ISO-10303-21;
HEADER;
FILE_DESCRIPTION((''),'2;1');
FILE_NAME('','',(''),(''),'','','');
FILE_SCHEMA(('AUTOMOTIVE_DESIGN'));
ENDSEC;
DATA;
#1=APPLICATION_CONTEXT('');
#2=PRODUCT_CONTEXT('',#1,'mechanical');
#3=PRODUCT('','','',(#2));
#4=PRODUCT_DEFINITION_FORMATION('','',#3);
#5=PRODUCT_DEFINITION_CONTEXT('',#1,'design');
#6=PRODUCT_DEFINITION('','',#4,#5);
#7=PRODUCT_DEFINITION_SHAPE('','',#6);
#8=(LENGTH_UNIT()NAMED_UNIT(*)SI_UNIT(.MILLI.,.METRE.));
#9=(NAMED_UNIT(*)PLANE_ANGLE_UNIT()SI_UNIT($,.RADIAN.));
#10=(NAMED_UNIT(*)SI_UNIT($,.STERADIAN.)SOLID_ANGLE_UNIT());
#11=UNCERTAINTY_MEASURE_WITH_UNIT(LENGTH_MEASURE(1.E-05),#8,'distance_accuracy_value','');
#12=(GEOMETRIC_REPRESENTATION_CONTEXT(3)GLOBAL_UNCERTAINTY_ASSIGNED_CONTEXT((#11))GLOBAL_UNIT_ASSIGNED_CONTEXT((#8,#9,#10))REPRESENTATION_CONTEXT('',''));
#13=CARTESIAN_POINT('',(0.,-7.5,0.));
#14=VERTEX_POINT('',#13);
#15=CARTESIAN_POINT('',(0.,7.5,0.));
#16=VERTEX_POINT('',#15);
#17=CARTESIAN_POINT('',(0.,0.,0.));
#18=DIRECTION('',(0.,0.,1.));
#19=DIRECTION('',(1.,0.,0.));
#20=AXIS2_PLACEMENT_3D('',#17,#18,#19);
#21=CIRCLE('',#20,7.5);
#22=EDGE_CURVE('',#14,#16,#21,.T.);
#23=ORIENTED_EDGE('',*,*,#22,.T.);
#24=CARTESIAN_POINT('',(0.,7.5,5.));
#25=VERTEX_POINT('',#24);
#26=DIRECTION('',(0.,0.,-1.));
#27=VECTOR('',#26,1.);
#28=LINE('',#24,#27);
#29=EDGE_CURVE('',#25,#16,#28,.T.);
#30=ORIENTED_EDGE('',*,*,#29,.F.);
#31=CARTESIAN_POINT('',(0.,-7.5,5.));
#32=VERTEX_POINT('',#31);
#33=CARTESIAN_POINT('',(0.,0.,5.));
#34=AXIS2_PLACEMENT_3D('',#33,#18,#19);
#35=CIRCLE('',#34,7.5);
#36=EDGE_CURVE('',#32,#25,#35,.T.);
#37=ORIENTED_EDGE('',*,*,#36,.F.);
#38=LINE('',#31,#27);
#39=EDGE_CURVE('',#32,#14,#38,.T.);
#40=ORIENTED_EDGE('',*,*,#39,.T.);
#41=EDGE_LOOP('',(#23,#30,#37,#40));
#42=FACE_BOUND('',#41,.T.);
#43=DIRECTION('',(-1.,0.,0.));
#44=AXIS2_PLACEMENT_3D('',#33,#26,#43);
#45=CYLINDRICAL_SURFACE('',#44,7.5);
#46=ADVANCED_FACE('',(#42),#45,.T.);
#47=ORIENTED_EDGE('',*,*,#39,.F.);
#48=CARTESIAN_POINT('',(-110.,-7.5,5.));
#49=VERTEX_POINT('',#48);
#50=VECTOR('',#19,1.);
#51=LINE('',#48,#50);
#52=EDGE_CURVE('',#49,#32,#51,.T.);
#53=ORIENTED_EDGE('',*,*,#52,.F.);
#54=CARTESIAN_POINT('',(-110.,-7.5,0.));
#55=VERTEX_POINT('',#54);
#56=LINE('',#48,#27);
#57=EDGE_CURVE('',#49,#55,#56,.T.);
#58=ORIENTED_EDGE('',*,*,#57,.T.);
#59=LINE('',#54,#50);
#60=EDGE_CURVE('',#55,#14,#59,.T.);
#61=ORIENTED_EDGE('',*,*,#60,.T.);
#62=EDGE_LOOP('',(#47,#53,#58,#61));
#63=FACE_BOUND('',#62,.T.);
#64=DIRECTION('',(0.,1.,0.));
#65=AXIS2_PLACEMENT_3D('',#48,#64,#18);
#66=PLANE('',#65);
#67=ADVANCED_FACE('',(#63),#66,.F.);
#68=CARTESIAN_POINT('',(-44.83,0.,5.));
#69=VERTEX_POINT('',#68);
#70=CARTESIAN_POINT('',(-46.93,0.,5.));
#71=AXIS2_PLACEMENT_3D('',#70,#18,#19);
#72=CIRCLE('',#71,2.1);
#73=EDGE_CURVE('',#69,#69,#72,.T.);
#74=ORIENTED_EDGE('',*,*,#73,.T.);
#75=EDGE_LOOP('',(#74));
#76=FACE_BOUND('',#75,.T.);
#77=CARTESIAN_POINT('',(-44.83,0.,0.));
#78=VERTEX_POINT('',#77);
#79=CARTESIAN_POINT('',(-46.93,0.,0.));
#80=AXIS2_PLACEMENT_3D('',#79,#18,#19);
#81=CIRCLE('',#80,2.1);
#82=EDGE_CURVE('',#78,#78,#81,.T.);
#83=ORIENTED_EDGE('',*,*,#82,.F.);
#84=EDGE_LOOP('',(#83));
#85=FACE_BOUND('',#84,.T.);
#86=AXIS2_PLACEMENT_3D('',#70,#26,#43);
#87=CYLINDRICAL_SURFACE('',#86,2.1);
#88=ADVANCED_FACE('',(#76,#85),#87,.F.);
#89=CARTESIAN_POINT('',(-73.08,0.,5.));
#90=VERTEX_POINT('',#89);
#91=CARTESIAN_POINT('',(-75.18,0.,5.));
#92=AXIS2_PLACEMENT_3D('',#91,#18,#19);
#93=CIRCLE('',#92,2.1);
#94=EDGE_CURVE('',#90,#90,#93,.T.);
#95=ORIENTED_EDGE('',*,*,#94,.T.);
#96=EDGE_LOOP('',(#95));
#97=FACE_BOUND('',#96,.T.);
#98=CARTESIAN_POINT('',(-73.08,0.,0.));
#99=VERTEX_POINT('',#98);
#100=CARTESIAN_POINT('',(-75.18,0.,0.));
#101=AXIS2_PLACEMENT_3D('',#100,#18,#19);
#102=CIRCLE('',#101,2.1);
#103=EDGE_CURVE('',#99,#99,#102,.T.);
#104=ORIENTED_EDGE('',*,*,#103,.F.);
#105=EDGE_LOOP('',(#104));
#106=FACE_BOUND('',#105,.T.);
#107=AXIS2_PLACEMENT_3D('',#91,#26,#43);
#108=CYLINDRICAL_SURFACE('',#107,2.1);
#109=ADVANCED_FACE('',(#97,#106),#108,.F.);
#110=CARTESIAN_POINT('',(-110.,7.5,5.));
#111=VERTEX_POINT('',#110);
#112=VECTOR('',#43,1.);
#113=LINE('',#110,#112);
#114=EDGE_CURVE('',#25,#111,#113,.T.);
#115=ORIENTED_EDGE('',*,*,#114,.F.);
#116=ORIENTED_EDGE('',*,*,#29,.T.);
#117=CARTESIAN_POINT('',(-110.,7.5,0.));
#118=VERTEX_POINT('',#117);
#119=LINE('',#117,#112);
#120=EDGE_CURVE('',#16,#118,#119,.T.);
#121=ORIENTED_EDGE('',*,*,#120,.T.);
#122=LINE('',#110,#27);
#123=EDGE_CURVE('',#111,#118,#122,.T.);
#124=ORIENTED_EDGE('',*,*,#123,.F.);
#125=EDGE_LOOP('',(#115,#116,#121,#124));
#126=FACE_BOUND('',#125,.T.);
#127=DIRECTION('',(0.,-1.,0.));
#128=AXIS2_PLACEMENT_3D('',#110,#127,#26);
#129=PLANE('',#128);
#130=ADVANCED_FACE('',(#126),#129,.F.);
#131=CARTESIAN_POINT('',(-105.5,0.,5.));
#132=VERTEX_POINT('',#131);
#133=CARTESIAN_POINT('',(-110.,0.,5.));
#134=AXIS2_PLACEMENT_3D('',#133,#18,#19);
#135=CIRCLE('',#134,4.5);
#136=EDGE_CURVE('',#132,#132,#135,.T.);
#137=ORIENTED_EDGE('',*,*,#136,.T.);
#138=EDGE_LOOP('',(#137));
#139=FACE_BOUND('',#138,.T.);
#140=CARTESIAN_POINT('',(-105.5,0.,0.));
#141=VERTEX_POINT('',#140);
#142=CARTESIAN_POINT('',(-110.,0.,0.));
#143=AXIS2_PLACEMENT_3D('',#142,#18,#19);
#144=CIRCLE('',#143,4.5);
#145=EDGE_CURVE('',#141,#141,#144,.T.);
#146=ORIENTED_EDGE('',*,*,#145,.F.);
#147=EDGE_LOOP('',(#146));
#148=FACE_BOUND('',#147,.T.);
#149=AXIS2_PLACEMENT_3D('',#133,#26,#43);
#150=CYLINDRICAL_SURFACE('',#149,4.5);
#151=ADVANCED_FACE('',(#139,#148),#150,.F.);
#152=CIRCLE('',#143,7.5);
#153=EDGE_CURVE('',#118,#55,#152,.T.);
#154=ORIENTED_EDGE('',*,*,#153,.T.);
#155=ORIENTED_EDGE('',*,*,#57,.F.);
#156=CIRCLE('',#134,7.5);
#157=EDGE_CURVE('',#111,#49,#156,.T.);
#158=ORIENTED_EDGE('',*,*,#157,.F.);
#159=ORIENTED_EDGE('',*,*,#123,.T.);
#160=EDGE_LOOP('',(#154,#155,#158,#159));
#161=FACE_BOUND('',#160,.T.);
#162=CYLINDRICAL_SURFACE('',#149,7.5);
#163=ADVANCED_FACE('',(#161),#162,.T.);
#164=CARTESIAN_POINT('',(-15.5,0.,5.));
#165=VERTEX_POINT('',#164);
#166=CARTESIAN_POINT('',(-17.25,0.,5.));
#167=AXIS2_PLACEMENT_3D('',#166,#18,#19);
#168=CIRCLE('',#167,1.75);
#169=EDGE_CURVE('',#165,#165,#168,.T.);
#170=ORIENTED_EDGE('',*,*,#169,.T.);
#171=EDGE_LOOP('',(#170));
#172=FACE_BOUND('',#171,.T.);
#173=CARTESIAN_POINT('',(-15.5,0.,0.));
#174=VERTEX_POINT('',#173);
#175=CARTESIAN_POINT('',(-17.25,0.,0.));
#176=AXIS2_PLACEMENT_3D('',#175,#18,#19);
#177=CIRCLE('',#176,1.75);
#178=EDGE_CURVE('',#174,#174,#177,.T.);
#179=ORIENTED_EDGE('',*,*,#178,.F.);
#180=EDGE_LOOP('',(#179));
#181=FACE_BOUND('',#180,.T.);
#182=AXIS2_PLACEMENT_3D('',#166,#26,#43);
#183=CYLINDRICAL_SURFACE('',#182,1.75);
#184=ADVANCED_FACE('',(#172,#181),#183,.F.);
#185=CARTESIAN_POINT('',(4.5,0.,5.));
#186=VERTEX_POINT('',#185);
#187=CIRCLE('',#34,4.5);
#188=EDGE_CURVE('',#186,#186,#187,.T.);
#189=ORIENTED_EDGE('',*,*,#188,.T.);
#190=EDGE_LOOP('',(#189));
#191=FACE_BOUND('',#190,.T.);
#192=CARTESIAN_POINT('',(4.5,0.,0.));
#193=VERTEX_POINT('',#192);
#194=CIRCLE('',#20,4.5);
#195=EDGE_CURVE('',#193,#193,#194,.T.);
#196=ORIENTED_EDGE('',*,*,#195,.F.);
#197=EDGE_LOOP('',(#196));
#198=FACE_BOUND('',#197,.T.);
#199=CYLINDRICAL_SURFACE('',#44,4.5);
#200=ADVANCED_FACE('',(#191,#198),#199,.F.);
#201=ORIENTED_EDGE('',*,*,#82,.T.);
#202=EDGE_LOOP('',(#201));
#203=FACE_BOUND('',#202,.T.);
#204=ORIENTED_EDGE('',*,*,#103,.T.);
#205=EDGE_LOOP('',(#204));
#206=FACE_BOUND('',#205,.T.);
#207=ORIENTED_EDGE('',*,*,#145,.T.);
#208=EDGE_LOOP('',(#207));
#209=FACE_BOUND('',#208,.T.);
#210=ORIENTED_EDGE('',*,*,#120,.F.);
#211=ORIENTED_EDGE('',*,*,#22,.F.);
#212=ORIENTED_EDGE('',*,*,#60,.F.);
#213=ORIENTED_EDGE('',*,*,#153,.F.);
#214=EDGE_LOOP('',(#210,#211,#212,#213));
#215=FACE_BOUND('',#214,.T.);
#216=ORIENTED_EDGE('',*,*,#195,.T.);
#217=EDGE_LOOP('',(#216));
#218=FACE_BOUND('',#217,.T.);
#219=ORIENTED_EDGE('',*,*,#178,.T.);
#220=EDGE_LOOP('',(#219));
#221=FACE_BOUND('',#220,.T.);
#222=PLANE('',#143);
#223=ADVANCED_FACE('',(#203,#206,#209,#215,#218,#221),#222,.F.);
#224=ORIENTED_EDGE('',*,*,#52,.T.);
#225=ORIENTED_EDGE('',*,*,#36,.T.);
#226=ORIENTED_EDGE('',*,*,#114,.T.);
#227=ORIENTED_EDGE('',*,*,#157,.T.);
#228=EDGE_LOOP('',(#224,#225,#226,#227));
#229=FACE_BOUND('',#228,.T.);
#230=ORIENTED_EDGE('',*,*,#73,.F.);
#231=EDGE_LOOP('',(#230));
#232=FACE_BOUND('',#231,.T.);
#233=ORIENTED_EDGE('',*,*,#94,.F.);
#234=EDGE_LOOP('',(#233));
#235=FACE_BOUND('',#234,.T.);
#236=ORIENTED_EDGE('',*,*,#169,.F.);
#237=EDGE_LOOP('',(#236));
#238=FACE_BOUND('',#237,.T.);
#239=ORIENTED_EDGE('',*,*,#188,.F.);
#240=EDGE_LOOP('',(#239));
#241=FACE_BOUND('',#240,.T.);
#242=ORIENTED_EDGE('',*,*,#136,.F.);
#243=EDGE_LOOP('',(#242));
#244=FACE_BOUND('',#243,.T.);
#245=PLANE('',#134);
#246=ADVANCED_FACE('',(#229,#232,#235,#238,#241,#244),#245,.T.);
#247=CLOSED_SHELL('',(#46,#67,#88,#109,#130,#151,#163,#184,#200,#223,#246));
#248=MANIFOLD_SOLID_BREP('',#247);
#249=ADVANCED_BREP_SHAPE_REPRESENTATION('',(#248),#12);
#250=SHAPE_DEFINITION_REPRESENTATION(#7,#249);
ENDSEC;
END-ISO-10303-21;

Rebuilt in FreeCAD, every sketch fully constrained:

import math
import FreeCAD as App
import Part
import Sketcher

doc = App.newDocument("Part")
body = doc.addObject("PartDesign::Body", "Body")

# Sketch on XY plane
sketch1 = body.newObject("Sketcher::SketchObject", "Sketch")
sketch1.AttachmentSupport = (doc.getObject("XY_Plane"), [""])
sketch1.MapMode = "FlatFace"
sketch1.addGeometry([
    Part.LineSegment(App.Vector(0, 7.5, 0), App.Vector(-110, 7.5, 0)),  # 0
    Part.ArcOfCircle(Part.Circle(App.Vector(-110, 0, 0), App.Vector(0, 0, 1), 7.5), math.radians(90), math.radians(270)),  # 1
    Part.LineSegment(App.Vector(-110, -7.5, 0), App.Vector(0, -7.5, 0)),  # 2
    Part.ArcOfCircle(Part.Circle(App.Vector(0, 0, 0), App.Vector(0, 0, 1), 7.5), math.radians(-90), math.radians(90)),  # 3
    Part.Circle(App.Vector(0, 0, 0), App.Vector(0, 0, 1), 4.5),  # 4
    Part.Circle(App.Vector(-17.2, 0, 0), App.Vector(0, 0, 1), 1.8),  # 5
    Part.Circle(App.Vector(-46.9, 0, 0), App.Vector(0, 0, 1), 2.1),  # 6
    Part.Circle(App.Vector(-75.2, 0, 0), App.Vector(0, 0, 1), 2.1),  # 7
    Part.Circle(App.Vector(-110, 0, 0), App.Vector(0, 0, 1), 4.5),  # 8
], False)
sketch1.addConstraint([
    Sketcher.Constraint("Tangent", 0, 2, 1, 1),
    Sketcher.Constraint("Tangent", 1, 2, 2, 1),
    Sketcher.Constraint("Tangent", 2, 2, 3, 1),
    Sketcher.Constraint("Tangent", 3, 2, 0, 1),
    Sketcher.Constraint("Horizontal", 0),
    Sketcher.Constraint("Horizontal", 2),
    Sketcher.Constraint("Coincident", 3, 3, -1, 1),
    Sketcher.Constraint("Coincident", 4, 3, -1, 1),
    Sketcher.Constraint("Coincident", 8, 3, 1, 3),
    Sketcher.Constraint("Equal", 6, 7),
    Sketcher.Constraint("Equal", 4, 8),
    Sketcher.Constraint("PointOnObject", 5, 3, -1),
    Sketcher.Constraint("PointOnObject", 6, 3, -1),
    Sketcher.Constraint("PointOnObject", 7, 3, -1),
    Sketcher.Constraint("Diameter", 4, 9.0),
    Sketcher.Constraint("Diameter", 5, 3.5),
    Sketcher.Constraint("Diameter", 6, 4.2),
    Sketcher.Constraint("Radius", 1, 7.5),
    Sketcher.Constraint("DistanceX", 0, 2, 0, 1, 110.0),
    Sketcher.Constraint("DistanceX", 5, 3, -1, 1, 17.25),
    Sketcher.Constraint("DistanceX", 6, 3, -1, 1, 46.93),
    Sketcher.Constraint("DistanceX", 7, 3, -1, 1, 75.18),
])
pad1 = body.newObject("PartDesign::Pad", "Pad")
pad1.Profile = sketch1
pad1.Length = 5

doc.recompute()
